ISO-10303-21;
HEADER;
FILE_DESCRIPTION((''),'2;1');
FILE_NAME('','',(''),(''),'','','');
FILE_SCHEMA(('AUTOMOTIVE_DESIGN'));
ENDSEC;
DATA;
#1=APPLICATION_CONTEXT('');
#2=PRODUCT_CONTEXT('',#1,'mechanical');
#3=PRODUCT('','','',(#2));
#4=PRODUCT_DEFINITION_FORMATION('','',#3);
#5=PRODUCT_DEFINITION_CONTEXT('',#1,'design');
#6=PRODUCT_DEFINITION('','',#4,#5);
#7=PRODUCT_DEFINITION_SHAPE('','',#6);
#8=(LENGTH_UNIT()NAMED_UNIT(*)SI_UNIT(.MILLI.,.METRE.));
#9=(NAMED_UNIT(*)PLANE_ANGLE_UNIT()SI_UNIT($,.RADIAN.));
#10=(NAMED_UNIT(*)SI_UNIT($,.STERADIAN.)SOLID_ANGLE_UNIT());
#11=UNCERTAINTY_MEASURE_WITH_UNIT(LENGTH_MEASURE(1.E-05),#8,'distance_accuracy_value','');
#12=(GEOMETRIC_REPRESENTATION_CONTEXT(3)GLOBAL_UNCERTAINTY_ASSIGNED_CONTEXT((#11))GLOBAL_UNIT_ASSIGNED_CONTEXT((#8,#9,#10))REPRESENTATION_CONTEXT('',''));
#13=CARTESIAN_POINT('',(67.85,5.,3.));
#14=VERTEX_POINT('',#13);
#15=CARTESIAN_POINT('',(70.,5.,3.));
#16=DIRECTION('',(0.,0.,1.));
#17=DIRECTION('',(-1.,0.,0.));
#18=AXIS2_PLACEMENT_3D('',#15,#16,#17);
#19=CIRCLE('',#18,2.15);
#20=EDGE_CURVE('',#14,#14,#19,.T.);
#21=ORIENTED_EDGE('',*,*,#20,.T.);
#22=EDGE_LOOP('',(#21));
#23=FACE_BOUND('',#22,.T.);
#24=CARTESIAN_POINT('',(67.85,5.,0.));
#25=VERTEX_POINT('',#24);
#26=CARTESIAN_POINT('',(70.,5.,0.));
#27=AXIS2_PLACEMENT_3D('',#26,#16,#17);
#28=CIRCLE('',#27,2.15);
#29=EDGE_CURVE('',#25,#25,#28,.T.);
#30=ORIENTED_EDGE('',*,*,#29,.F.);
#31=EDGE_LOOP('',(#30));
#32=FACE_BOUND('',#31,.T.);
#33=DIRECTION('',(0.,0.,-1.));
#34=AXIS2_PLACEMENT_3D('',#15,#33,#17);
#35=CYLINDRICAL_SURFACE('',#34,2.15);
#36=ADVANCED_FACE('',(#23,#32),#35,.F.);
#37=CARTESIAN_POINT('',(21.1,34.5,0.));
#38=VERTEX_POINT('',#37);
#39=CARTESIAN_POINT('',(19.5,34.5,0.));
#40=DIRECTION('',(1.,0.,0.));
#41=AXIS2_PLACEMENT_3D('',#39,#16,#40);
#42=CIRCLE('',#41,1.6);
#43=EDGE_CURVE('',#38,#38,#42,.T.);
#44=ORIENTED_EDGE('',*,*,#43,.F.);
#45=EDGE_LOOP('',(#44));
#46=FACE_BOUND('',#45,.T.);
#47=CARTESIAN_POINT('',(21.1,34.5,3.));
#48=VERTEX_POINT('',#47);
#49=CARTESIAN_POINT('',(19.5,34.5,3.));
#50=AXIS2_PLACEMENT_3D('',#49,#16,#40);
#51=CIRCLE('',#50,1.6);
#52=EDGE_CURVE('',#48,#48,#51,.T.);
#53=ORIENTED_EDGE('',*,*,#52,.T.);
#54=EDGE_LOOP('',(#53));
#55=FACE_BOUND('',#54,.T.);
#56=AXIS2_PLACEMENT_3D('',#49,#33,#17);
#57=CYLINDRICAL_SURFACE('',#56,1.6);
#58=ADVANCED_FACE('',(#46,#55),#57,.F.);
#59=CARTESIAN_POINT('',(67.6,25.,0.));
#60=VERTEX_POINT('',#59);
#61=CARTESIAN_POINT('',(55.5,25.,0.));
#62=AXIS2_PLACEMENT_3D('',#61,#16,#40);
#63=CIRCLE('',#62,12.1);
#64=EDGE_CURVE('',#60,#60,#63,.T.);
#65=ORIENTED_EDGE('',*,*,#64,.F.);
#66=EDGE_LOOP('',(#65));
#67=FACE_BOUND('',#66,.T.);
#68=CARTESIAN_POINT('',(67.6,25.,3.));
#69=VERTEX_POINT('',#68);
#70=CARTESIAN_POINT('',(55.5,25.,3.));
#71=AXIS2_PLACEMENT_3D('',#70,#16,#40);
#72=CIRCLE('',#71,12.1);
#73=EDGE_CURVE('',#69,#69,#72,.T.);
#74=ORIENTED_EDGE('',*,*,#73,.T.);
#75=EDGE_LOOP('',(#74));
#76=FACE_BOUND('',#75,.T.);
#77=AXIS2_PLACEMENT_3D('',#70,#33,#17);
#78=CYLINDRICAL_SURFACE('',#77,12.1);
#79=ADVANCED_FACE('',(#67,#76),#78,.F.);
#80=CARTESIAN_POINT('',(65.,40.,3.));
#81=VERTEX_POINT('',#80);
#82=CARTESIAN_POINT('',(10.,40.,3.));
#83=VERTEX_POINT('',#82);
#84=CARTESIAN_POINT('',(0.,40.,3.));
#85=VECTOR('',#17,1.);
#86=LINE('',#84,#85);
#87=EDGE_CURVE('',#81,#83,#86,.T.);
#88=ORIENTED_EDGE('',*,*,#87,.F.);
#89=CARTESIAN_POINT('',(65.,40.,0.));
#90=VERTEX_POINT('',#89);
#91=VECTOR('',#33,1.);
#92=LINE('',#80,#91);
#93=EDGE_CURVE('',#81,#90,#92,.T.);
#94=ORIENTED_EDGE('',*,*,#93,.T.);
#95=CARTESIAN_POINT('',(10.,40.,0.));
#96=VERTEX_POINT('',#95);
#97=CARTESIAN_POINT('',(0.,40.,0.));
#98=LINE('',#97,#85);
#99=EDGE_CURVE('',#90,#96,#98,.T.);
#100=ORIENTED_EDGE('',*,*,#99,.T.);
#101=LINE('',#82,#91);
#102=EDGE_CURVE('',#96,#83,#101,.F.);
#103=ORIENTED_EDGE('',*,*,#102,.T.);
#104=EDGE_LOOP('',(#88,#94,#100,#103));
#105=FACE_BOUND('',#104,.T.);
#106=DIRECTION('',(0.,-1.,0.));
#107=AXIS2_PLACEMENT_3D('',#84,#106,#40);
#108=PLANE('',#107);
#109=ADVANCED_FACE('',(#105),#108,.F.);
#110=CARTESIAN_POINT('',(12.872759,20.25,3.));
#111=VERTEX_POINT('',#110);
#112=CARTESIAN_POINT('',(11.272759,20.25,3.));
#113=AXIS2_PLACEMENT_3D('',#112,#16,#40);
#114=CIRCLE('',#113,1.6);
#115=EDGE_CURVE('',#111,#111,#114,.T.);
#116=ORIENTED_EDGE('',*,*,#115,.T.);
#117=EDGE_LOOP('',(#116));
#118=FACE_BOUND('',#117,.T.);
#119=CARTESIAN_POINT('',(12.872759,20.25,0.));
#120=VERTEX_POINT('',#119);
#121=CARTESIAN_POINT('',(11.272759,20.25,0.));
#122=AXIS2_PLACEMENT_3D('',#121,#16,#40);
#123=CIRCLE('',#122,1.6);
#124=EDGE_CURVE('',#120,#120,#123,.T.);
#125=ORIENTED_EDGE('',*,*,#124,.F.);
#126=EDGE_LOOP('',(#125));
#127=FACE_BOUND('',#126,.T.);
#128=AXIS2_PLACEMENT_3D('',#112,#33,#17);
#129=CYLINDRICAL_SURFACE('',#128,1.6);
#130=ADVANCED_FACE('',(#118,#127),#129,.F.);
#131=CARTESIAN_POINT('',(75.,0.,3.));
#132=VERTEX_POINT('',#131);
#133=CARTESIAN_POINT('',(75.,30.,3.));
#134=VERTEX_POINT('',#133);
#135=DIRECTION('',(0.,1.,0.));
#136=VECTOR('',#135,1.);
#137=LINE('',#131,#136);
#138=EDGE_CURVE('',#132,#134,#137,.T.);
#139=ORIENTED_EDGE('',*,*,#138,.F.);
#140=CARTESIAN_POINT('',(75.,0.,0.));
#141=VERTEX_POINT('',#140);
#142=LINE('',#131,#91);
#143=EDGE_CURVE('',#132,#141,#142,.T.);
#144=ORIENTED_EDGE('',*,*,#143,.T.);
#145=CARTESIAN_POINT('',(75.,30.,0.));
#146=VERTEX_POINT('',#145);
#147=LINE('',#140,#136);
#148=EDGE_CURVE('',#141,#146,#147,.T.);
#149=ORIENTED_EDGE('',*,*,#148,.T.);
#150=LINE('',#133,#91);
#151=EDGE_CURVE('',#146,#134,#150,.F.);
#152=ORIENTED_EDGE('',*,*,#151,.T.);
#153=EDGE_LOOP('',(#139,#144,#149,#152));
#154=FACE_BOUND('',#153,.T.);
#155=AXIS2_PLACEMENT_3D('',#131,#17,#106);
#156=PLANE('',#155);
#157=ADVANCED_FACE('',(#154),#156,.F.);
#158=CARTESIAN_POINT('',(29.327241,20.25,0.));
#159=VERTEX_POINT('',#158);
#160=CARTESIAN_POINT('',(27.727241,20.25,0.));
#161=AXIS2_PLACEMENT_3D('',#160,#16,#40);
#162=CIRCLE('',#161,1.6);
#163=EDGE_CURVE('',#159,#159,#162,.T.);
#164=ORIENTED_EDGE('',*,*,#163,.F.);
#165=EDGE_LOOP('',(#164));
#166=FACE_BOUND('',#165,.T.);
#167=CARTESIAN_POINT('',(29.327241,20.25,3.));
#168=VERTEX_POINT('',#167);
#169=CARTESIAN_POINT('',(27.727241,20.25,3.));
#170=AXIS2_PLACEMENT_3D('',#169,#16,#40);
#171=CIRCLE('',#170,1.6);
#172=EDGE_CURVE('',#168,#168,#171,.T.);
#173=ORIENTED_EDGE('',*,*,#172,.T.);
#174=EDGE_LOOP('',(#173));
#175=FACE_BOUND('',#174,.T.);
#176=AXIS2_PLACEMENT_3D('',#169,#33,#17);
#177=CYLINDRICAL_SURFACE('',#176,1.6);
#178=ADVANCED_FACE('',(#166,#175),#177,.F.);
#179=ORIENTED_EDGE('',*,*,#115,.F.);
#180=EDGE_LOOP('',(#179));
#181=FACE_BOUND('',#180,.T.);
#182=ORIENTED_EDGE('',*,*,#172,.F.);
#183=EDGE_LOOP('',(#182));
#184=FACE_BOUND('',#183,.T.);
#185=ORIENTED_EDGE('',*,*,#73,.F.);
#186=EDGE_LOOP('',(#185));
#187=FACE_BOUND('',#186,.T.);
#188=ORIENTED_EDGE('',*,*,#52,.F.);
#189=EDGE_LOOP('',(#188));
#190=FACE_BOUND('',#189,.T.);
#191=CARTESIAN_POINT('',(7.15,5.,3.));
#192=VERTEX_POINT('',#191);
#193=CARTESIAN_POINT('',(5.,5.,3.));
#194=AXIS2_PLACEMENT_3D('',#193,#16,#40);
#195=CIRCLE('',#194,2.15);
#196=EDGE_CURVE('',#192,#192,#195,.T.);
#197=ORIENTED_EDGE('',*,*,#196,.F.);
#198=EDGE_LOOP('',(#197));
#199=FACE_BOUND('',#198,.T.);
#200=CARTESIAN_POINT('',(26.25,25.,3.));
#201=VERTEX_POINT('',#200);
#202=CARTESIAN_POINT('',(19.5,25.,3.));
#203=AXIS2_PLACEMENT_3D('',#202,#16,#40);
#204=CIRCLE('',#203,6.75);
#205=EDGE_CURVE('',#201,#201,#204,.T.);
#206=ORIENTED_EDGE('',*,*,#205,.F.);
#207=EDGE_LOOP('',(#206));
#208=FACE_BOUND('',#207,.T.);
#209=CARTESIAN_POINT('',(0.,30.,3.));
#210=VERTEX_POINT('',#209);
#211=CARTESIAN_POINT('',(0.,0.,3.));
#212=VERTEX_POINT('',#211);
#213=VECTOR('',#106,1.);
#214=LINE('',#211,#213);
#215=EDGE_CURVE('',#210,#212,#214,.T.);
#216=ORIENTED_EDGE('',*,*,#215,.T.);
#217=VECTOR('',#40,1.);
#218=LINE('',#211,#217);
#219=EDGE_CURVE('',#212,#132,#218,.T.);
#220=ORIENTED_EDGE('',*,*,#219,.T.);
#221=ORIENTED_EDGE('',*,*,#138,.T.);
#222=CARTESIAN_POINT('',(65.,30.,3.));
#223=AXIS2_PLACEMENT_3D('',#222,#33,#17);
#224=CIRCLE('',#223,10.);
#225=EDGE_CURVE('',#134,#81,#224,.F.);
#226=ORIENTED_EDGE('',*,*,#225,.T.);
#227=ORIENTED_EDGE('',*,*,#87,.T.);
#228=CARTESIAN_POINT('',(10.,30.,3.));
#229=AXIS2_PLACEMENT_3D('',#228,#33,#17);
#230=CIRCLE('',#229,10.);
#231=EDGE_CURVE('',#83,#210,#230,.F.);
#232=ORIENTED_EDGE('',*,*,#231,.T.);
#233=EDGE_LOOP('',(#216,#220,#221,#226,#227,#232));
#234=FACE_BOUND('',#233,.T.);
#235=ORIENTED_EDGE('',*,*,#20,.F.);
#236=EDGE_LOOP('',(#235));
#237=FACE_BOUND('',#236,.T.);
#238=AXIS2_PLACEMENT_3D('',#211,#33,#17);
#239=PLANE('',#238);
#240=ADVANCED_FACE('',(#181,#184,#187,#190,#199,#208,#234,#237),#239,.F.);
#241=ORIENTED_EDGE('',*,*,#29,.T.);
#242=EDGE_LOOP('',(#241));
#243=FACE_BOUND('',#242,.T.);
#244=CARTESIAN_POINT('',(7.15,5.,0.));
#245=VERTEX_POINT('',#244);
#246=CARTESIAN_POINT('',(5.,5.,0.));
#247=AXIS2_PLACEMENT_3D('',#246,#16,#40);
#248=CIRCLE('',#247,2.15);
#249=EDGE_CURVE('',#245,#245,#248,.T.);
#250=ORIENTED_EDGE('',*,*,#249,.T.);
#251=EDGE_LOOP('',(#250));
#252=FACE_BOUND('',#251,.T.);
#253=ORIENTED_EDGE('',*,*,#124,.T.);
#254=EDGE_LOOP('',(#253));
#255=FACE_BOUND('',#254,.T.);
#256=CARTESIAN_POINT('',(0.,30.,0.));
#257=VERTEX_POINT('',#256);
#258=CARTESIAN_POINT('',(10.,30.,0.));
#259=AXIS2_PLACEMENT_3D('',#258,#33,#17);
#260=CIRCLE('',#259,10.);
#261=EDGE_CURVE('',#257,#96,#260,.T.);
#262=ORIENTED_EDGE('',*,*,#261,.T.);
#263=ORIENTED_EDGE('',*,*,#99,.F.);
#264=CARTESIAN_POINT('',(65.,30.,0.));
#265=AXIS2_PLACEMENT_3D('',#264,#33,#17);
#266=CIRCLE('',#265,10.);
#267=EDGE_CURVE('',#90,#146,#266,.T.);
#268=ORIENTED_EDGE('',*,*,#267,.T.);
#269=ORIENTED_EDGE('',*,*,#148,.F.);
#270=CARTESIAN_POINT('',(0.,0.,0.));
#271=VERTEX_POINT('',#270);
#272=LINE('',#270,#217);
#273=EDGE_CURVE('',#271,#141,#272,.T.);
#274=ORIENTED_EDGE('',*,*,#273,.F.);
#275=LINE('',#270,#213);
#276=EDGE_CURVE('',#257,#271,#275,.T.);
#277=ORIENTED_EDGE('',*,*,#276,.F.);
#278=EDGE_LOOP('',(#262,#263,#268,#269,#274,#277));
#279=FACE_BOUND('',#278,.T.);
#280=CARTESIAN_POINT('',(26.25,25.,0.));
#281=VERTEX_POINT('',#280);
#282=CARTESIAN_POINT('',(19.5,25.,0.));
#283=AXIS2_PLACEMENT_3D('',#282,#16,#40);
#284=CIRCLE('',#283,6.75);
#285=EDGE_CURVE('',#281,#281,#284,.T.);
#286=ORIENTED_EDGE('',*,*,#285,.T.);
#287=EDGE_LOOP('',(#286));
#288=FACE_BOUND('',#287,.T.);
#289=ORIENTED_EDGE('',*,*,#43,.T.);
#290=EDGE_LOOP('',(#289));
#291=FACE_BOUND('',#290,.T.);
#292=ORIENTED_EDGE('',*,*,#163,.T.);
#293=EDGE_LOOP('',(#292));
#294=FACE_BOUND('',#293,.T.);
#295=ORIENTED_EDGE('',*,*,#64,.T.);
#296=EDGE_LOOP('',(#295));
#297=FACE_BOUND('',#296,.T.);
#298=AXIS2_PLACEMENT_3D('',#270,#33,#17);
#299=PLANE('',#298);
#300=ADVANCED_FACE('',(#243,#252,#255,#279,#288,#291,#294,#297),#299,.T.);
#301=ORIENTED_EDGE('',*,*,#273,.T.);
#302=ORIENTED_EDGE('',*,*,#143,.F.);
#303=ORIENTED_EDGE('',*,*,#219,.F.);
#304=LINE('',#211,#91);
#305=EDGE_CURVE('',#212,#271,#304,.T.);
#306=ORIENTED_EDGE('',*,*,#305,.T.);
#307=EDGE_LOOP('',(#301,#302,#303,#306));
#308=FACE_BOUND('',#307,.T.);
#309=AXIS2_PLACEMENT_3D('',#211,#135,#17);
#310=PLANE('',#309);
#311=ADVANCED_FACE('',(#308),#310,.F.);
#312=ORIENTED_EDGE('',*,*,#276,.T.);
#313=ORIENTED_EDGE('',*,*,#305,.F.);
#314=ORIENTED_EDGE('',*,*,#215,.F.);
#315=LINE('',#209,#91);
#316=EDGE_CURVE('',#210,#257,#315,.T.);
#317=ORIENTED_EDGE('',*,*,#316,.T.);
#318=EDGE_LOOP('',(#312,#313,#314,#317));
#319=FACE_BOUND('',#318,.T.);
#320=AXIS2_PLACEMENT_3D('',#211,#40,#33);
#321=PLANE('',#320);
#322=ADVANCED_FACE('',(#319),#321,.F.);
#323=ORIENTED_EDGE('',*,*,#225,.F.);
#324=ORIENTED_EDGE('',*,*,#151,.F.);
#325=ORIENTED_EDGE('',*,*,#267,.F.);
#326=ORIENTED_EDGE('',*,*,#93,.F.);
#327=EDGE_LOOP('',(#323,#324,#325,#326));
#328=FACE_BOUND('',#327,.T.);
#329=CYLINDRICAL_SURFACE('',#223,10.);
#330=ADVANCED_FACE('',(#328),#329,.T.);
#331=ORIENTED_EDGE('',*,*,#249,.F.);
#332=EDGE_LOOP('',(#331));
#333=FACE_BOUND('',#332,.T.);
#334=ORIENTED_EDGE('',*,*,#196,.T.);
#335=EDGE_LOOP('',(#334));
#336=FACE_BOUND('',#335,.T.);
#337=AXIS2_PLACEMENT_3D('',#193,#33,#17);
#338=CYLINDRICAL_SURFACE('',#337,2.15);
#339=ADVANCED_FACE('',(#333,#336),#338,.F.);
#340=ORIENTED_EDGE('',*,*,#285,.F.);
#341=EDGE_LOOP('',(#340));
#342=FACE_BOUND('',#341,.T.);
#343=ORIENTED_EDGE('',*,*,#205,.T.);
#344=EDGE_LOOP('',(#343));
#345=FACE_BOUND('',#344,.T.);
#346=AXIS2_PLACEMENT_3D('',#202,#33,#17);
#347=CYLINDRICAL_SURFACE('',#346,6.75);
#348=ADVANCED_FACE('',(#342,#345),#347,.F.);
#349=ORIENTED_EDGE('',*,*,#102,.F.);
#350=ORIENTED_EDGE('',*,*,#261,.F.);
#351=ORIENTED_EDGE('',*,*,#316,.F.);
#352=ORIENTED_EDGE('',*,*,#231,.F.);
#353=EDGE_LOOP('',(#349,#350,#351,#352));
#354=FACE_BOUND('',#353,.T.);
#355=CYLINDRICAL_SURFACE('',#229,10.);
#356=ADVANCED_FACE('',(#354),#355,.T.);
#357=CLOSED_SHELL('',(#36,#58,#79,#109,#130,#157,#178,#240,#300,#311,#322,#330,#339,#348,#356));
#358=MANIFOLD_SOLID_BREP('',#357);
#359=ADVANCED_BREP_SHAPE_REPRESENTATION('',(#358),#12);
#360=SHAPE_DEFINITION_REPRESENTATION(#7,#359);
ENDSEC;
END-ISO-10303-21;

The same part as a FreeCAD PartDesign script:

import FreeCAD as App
import Part
import Sketcher
Q = App.Units.Quantity


def edges_at(feature, points):
    """Names of the edges that pass closest to the given points."""
    edges = feature.Shape.Edges
    near = lambda p: min(range(len(edges)), key=lambda i: edges[i].distToShape(Part.Vertex(*p))[0])
    return sorted({f"Edge{near(p) + 1}" for p in points})


def add_polygon(sketch, points):
    """Adds a closed chain of lines whose ends are joined by coincident constraints."""
    first, n = sketch.GeometryCount, len(points)
    for a, b in zip(points, points[1:] + points[:1]):
        sketch.addGeometry(Part.LineSegment(App.Vector(*a, 0), App.Vector(*b, 0)), False)
    for i in range(n):
        sketch.addConstraint(Sketcher.Constraint("Coincident", first + i, 2, first + (i + 1) % n, 1))

doc = App.newDocument("Part")
params = doc.addObject("Spreadsheet::Sheet", "Params")
for row, (alias, value) in enumerate([
    ("sketch1_diameter", "4.3 mm"),
    ("sketch1_diameter2", "3.2 mm"),
    ("sketch1_diameter3", "13.5 mm"),
    ("sketch1_diameter4", "24.2 mm"),
    ("sketch1_width", "75 mm"),
    ("pad1_length", "3 mm"),
    ("fillet_radius", "10 mm"),
], start=1):
    params.set(f"A{row}", alias)
    params.set(f"B{row}", "=" + value)
    params.setAlias(f"B{row}", alias)

body = doc.addObject("PartDesign::Body", "Body")

# Sketch on XY plane
sketch1 = body.newObject("Sketcher::SketchObject", "Sketch")
sketch1.AttachmentSupport = (doc.getObject("XY_Plane"), [""])
sketch1.MapMode = "FlatFace"
add_polygon(sketch1, [(0, 40), (0, 0), (75, 0), (75, 40)])  # lines 0-3
sketch1.addGeometry(Part.Circle(App.Vector(5, 5, 0), App.Vector(0, 0, 1), 2.15), False)  # 4
sketch1.addGeometry(Part.Circle(App.Vector(70, 5, 0), App.Vector(0, 0, 1), 2.15), False)  # 5
sketch1.addGeometry(Part.Circle(App.Vector(11.272759, 20.25, 0), App.Vector(0, 0, 1), 1.6), False)  # 6
sketch1.addGeometry(Part.Circle(App.Vector(19.5, 25, 0), App.Vector(0, 0, 1), 6.75), False)  # 7
sketch1.addGeometry(Part.Circle(App.Vector(27.727241, 20.25, 0), App.Vector(0, 0, 1), 1.6), False)  # 8
sketch1.addGeometry(Part.Circle(App.Vector(19.5, 34.5, 0), App.Vector(0, 0, 1), 1.6), False)  # 9
sketch1.addGeometry(Part.Circle(App.Vector(55.5, 25, 0), App.Vector(0, 0, 1), 12.1), False)  # 10
sketch1.addConstraint([
    Sketcher.Constraint("Vertical", 0),
    Sketcher.Constraint("Horizontal", 1),
    Sketcher.Constraint("Vertical", 2),
    Sketcher.Constraint("Horizontal", 3),
    Sketcher.Constraint("Coincident", 0, 2, -1, 1),
    Sketcher.Constraint("Equal", 4, 5),
    Sketcher.Constraint("Equal", 6, 8),
    Sketcher.Constraint("Equal", 8, 9),
    Sketcher.Constraint("Horizontal", 4, 3, 5, 3),
    Sketcher.Constraint("Horizontal", 6, 3, 8, 3),
    Sketcher.Constraint("Horizontal", 7, 3, 10, 3),
    Sketcher.Constraint("Vertical", 7, 3, 9, 3),
    Sketcher.Constraint("Diameter", 4, Q("4.3 mm")),
    Sketcher.Constraint("Diameter", 6, Q("3.2 mm")),
    Sketcher.Constraint("Diameter", 7, Q("13.5 mm")),
    Sketcher.Constraint("Diameter", 10, Q("24.2 mm")),
    Sketcher.Constraint("DistanceX", 1, 1, 1, 2, Q("75 mm")),
    Sketcher.Constraint("DistanceY", 0, 2, 0, 1, Q("40 mm")),
    Sketcher.Constraint("DistanceX", -1, 1, 4, 3, Q("5 mm")),
    Sketcher.Constraint("DistanceY", -1, 1, 4, 3, Q("5 mm")),
    Sketcher.Constraint("DistanceX", -1, 1, 5, 3, Q("70 mm")),
    Sketcher.Constraint("DistanceY", -1, 1, 7, 3, Q("25 mm")),
    Sketcher.Constraint("DistanceX", 7, 3, 10, 3, Q("36 mm")),
    Sketcher.Constraint("DistanceX", -1, 1, 7, 3, Q("19.5 mm")),
    Sketcher.Constraint("DistanceY", -1, 1, 9, 3, Q("34.5 mm")),
    Sketcher.Constraint("DistanceY", -1, 1, 6, 3, Q("20.25 mm")),
    Sketcher.Constraint("DistanceX", -1, 1, 6, 3, Q("11.272759 mm")),
    Sketcher.Constraint("DistanceX", -1, 1, 8, 3, Q("27.727241 mm")),
])
sketch1.setExpression("Constraints[16]", "Params.sketch1_diameter")
sketch1.setExpression("Constraints[17]", "Params.sketch1_diameter2")
sketch1.setExpression("Constraints[18]", "Params.sketch1_diameter3")
sketch1.setExpression("Constraints[19]", "Params.sketch1_diameter4")
sketch1.setExpression("Constraints[20]", "Params.sketch1_width")
pad1 = body.newObject("PartDesign::Pad", "Pad")
pad1.Profile = sketch1
pad1.setExpression("Length", "Params.pad1_length")
doc.recompute()

fillet = body.newObject("PartDesign::Fillet", "Fillet")
fillet.Base = (pad1, edges_at(pad1, [(0, 40, 1.5), (75, 40, 1.5)]))
fillet.setExpression("Radius", "Params.fillet_radius")

doc.recompute()
